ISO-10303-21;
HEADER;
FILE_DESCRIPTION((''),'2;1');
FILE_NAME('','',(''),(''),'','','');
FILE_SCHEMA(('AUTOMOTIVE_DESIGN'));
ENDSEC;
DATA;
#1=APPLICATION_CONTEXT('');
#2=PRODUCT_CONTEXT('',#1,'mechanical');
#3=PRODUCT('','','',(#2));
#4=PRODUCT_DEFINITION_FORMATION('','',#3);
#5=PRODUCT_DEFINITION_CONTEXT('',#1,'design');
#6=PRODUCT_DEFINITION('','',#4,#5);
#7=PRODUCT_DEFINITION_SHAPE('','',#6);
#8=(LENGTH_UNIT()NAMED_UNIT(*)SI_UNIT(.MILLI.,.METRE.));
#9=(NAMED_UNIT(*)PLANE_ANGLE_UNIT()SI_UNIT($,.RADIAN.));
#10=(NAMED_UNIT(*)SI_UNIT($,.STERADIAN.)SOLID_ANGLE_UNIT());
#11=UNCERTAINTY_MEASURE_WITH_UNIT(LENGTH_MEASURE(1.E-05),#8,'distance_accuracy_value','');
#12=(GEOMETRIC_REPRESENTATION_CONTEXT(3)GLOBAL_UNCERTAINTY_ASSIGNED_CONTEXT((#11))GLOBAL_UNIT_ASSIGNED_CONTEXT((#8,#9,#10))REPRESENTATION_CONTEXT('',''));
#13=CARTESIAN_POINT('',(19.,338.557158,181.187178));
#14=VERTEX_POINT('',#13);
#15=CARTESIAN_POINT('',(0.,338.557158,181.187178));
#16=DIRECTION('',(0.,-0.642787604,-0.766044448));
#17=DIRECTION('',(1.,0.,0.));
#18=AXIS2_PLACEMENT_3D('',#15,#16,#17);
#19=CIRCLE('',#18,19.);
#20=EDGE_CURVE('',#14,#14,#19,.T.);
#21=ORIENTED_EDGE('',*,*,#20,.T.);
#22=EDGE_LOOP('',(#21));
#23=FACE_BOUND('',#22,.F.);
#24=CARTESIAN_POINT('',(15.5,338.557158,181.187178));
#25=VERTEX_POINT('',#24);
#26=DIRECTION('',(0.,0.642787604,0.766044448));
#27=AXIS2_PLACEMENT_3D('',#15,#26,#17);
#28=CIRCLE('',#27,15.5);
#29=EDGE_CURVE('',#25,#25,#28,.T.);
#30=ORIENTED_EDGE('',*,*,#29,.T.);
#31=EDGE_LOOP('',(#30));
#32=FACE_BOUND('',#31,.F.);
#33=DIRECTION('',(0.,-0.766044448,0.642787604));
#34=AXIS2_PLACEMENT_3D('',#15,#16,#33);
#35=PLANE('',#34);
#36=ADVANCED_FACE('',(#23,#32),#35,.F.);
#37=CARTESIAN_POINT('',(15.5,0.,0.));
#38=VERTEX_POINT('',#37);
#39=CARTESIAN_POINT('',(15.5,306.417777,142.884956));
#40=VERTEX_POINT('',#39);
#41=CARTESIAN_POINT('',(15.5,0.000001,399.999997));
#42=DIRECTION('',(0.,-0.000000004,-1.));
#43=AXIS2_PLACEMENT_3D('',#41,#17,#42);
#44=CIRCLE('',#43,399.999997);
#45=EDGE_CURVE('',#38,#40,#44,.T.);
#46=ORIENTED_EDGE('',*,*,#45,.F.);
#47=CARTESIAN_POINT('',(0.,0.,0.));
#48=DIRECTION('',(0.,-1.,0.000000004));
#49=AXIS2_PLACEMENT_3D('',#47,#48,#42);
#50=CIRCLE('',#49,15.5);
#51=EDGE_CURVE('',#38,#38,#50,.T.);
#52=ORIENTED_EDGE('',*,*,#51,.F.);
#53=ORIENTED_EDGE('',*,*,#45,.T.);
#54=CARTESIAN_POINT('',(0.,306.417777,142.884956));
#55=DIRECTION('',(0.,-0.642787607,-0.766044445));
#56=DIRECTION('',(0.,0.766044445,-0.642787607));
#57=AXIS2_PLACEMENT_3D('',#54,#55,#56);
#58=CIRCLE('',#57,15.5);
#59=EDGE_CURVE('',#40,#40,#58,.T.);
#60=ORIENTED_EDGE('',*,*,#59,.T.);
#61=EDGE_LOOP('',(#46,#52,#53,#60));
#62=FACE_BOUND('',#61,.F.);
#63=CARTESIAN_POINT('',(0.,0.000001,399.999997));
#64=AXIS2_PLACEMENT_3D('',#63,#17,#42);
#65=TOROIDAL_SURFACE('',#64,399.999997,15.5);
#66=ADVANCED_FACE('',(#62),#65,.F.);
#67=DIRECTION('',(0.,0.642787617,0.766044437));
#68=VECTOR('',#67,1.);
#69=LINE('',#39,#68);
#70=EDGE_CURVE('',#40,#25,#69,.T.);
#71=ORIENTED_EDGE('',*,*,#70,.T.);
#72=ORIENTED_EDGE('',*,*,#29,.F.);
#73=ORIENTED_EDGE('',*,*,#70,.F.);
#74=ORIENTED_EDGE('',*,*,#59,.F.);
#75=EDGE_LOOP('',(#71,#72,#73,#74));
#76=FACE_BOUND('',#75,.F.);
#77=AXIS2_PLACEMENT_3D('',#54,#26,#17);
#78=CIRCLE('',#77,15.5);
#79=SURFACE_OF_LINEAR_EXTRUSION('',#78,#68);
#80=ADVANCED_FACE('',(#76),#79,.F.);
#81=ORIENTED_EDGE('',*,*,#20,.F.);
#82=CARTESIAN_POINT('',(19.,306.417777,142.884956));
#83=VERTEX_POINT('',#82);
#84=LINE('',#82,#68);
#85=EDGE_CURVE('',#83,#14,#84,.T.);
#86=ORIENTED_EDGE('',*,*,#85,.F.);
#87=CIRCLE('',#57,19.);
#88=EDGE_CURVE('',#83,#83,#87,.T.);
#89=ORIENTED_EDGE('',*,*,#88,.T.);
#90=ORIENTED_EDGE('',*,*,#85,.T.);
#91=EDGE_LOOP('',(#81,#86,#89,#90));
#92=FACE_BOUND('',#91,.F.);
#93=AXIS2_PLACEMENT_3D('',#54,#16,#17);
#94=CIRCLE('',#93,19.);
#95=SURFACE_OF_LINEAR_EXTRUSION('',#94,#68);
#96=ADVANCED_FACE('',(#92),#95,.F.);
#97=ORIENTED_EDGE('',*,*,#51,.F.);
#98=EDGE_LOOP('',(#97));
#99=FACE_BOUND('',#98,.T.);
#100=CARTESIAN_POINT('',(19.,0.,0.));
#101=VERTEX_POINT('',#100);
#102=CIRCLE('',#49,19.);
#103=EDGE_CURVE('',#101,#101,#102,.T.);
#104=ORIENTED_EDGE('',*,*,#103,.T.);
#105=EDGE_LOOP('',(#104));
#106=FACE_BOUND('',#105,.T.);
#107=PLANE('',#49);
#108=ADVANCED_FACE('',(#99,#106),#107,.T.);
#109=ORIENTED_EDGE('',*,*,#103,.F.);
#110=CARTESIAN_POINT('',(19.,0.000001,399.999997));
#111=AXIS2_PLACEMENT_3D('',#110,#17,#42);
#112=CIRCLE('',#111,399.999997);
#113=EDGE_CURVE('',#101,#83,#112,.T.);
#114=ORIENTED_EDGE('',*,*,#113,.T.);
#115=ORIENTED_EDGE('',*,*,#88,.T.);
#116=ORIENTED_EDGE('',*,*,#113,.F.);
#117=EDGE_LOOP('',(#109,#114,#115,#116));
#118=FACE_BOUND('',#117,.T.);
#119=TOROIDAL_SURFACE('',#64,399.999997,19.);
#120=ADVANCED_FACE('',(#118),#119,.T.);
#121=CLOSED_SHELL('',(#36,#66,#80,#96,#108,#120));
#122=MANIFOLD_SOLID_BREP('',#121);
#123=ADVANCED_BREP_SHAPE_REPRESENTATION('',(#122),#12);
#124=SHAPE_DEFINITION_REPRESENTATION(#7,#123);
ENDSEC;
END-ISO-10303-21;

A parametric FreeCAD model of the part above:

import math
import FreeCAD as App
import Part
import Sketcher

V = App.Vector
Q = App.Units.Quantity

doc = App.newDocument("Part")
params = doc.addObject("Spreadsheet::Sheet", "Params")
for row, (alias, value) in enumerate([
    ("sketch1_diameter", "38 mm"),
    ("sketch1_diameter2", "31 mm"),
    ("sketch2_length", "50 mm"),
], start=1):
    params.set(f"A{row}", alias)
    params.set(f"B{row}", "=" + value)
    params.setAlias(f"B{row}", alias)

body = doc.addObject("PartDesign::Body", "Body")

sketch1 = body.newObject("Sketcher::SketchObject", "Sketch")
sketch1.AttachmentSupport = (doc.getObject("XZ_Plane"), [""])
sketch1.MapMode = "FlatFace"
sketch1.addGeometry([
    Part.Circle(V(0, 0, 0), V(0, 0, 1), 19),
    Part.Circle(V(0, 0, 0), V(0, 0, 1), 16),
], False)
sketch1.addConstraint([
    Sketcher.Constraint("Coincident", 0, 3, -1, 1),
    Sketcher.Constraint("Coincident", 1, 3, -1, 1),
    Sketcher.Constraint("Diameter", 0, Q("38 mm")),
    Sketcher.Constraint("Diameter", 1, Q("31 mm")),
])
sketch1.setExpression("Constraints[2]", "Params.sketch1_diameter")
sketch1.setExpression("Constraints[3]", "Params.sketch1_diameter2")

sketch2 = body.newObject("Sketcher::SketchObject", "Sketch001")
sketch2.AttachmentSupport = (doc.getObject("YZ_Plane"), [""])
sketch2.MapMode = "FlatFace"
sketch2.addGeometry([
    Part.ArcOfCircle(Part.Circle(V(0, 400, 0), V(0, 0, 1), 400), math.radians(-90), math.radians(-40)),
    Part.LineSegment(V(306, 143, 0), V(339, 181, 0)),
], False)
sketch2.addConstraint([
    Sketcher.Constraint("Tangent", 0, 2, 1, 1),
    Sketcher.Constraint("Coincident", 0, 1, -1, 1),
    Sketcher.Constraint("PointOnObject", 0, 3, -2),
    Sketcher.Constraint("Angle", 1, Q("49.999999 deg")),
    Sketcher.Constraint("Distance", 1, Q("50 mm")),
    Sketcher.Constraint("Radius", 0, Q("399.999997 mm")),
])
sketch2.setExpression("Constraints[4]", "Params.sketch2_length")
doc.recompute()

additivepipe = body.newObject("PartDesign::AdditivePipe", "AdditivePipe")
additivepipe.Profile = sketch1
additivepipe.Spine = (sketch2, ["Edge1", "Edge2"])

doc.recompute()
